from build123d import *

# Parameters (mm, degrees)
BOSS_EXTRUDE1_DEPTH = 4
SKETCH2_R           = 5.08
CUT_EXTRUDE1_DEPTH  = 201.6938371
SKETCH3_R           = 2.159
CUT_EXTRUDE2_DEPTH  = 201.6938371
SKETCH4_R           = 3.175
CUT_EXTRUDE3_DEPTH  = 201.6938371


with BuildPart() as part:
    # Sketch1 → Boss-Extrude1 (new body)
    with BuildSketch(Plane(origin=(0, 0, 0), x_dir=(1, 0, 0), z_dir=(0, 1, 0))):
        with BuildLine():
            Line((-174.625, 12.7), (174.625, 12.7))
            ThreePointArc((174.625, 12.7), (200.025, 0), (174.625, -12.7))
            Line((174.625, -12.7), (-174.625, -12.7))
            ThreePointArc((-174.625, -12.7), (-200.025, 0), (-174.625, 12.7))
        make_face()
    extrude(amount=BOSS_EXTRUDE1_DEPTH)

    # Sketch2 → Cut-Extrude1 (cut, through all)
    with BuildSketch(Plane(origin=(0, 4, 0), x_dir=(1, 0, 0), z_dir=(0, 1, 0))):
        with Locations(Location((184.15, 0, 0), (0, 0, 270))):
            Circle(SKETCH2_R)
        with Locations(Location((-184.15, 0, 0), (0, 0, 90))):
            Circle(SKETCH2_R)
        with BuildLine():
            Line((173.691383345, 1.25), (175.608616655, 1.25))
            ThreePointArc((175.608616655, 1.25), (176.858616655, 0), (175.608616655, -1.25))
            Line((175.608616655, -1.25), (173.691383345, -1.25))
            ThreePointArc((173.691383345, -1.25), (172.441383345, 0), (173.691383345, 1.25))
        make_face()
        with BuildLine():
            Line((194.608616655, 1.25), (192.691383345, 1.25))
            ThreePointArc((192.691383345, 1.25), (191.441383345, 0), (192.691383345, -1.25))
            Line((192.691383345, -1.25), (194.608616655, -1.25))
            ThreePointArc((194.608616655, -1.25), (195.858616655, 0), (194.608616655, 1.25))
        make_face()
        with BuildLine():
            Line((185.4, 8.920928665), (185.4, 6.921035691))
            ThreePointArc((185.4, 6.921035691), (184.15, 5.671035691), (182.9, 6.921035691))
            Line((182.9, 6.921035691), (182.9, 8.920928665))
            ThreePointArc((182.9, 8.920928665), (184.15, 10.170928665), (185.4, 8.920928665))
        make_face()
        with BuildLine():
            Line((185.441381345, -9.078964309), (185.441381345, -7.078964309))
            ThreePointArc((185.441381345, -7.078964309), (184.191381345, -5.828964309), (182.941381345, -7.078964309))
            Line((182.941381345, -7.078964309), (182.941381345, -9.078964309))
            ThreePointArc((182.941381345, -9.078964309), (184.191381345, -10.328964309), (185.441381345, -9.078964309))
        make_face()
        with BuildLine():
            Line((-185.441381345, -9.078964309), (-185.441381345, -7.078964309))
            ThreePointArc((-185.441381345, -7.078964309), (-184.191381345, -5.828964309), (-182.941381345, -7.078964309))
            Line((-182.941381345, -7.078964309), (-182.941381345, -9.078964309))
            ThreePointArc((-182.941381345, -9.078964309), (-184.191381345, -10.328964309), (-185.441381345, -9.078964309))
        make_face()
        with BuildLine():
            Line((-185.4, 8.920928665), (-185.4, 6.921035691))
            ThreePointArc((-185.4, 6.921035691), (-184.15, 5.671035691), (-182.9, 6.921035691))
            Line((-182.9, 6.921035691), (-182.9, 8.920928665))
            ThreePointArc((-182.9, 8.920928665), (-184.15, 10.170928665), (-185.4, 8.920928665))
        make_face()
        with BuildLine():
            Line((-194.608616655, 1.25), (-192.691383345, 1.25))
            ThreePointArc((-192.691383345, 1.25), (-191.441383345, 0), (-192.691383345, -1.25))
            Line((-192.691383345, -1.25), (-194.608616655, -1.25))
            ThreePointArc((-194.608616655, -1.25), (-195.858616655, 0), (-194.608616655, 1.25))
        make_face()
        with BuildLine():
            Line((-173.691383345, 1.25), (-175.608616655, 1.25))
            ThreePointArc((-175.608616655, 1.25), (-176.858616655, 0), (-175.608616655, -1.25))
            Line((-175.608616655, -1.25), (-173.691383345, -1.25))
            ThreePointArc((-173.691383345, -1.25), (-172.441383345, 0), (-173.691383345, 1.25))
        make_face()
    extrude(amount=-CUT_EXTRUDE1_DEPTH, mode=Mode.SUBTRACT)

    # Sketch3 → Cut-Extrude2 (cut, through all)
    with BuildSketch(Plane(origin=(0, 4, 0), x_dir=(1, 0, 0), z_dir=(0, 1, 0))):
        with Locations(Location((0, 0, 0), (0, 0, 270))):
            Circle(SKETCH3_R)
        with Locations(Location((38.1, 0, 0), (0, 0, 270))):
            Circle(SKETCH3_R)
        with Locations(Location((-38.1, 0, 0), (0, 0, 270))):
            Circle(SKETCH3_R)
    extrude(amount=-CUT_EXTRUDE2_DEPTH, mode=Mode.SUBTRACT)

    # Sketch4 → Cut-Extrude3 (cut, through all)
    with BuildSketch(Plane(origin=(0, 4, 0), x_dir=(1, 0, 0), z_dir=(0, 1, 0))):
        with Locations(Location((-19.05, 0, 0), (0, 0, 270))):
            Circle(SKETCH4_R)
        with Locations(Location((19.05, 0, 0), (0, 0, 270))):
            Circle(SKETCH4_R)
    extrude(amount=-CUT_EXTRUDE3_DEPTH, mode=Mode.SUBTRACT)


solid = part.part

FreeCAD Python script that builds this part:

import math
import FreeCAD as App
import Part
import Sketcher
Q = App.Units.Quantity

doc = App.newDocument("Part")
body = doc.addObject("PartDesign::Body", "Body")

# Sketch on XZ plane
sketch1 = body.newObject("Sketcher::SketchObject", "Sketch")
sketch1.AttachmentSupport = (doc.getObject("XZ_Plane"), [""])
sketch1.MapMode = "FlatFace"
sketch1.addGeometry(Part.LineSegment(App.Vector(175, -13, 0), App.Vector(-175, -13, 0)), False)
sketch1.addGeometry(Part.ArcOfCircle(Part.Circle(App.Vector(-184, 0, 0), App.Vector(0, 0, 1), 16), math.radians(53), math.radians(307)), False)
sketch1.addGeometry(Part.LineSegment(App.Vector(-175, 13, 0), App.Vector(175, 13, 0)), False)
sketch1.addGeometry(Part.ArcOfCircle(Part.Circle(App.Vector(184, 0, 0), App.Vector(0, 0, 1), 16), math.radians(-127), math.radians(127)), False)
sketch1.addConstraint(Sketcher.Constraint("Coincident", 0, 2, 1, 2))
sketch1.addConstraint(Sketcher.Constraint("Coincident", 1, 1, 2, 1))
sketch1.addConstraint(Sketcher.Constraint("Coincident", 2, 2, 3, 2))
sketch1.addConstraint(Sketcher.Constraint("Coincident", 3, 1, 0, 1))
sketch1.addConstraint(Sketcher.Constraint("Horizontal", 0))
sketch1.addConstraint(Sketcher.Constraint("Horizontal", 2))
sketch1.addConstraint(Sketcher.Constraint("Equal", 1, 3))
sketch1.addConstraint(Sketcher.Constraint("Symmetric", 1, 3, 3, 3, -1, 1))
sketch1.addConstraint(Sketcher.Constraint("Symmetric", 0, 2, 1, 1, -1))
sketch1.addConstraint(Sketcher.Constraint("Radius", 1, Q("0.625 in")))
sketch1.addConstraint(Sketcher.Constraint("DistanceY", 0, 2, 1, 1, Q("1 in")))
sketch1.addConstraint(Sketcher.Constraint("DistanceX", 0, 2, 0, 1, Q("13.75 in")))
pad1 = body.newObject("PartDesign::Pad", "Pad")
pad1.Profile = sketch1
pad1.Length = 4
pad1.Reversed = True

# Sketch on XZ plane
sketch2 = body.newObject("Sketcher::SketchObject", "Sketch001")
sketch2.AttachmentSupport = (doc.getObject("XZ_Plane"), [""])
sketch2.MapMode = "FlatFace"
sketch2.AttachmentOffset = App.Placement(App.Vector(0, 0, -4), App.Rotation())
sketch2.addGeometry(Part.Circle(App.Vector(184.2, 0, 0), App.Vector(0, 0, 1), 5.1), False)
sketch2.addGeometry(Part.Circle(App.Vector(-184.2, 0, 0), App.Vector(0, 0, 1), 5.1), False)
sketch2.addGeometry(Part.LineSegment(App.Vector(175.6, -1.2, 0), App.Vector(173.7, -1.2, 0)), False)
sketch2.addGeometry(Part.ArcOfCircle(Part.Circle(App.Vector(173.7, 0, 0), App.Vector(0, 0, 1), 1.2), math.radians(90), math.radians(270)), False)
sketch2.addGeometry(Part.LineSegment(App.Vector(173.7, 1.2, 0), App.Vector(175.6, 1.2, 0)), False)
sketch2.addGeometry(Part.ArcOfCircle(Part.Circle(App.Vector(175.6, 0, 0), App.Vector(0, 0, 1), 1.2), math.radians(-90), math.radians(90)), False)
sketch2.addGeometry(Part.LineSegment(App.Vector(194.6, -1.2, 0), App.Vector(192.7, -1.2, 0)), False)
sketch2.addGeometry(Part.ArcOfCircle(Part.Circle(App.Vector(192.7, 0, 0), App.Vector(0, 0, 1), 1.2), math.radians(90), math.radians(270)), False)
sketch2.addGeometry(Part.LineSegment(App.Vector(192.7, 1.2, 0), App.Vector(194.6, 1.2, 0)), False)
sketch2.addGeometry(Part.ArcOfCircle(Part.Circle(App.Vector(194.6, 0, 0), App.Vector(0, 0, 1), 1.2), math.radians(-90), math.radians(90)), False)
sketch2.addGeometry(Part.LineSegment(App.Vector(185.4, -6.9, 0), App.Vector(185.4, -8.9, 0)), False)
sketch2.addGeometry(Part.ArcOfCircle(Part.Circle(App.Vector(184.2, -8.9, 0), App.Vector(0, 0, 1), 1.2), math.radians(180), math.radians(360)), False)
sketch2.addGeometry(Part.LineSegment(App.Vector(182.9, -8.9, 0), App.Vector(182.9, -6.9, 0)), False)
sketch2.addGeometry(Part.ArcOfCircle(Part.Circle(App.Vector(184.2, -6.9, 0), App.Vector(0, 0, 1), 1.2), math.radians(0), math.radians(180)), False)
sketch2.addGeometry(Part.LineSegment(App.Vector(185.4, 9.1, 0), App.Vector(185.4, 7.1, 0)), False)
sketch2.addGeometry(Part.ArcOfCircle(Part.Circle(App.Vector(184.2, 7.1, 0), App.Vector(0, 0, 1), 1.2), math.radians(180), math.radians(360)), False)
sketch2.addGeometry(Part.LineSegment(App.Vector(182.9, 7.1, 0), App.Vector(182.9, 9.1, 0)), False)
sketch2.addGeometry(Part.ArcOfCircle(Part.Circle(App.Vector(184.2, 9.1, 0), App.Vector(0, 0, 1), 1.2), math.radians(0), math.radians(180)), False)
sketch2.addGeometry(Part.LineSegment(App.Vector(-185.4, 7.1, 0), App.Vector(-185.4, 9.1, 0)), False)
sketch2.addGeometry(Part.ArcOfCircle(Part.Circle(App.Vector(-184.2, 9.1, 0), App.Vector(0, 0, 1), 1.2), math.radians(0), math.radians(180)), False)
sketch2.addGeometry(Part.LineSegment(App.Vector(-182.9, 9.1, 0), App.Vector(-182.9, 7.1, 0)), False)
sketch2.addGeometry(Part.ArcOfCircle(Part.Circle(App.Vector(-184.2, 7.1, 0), App.Vector(0, 0, 1), 1.2), math.radians(180), math.radians(360)), False)
sketch2.addGeometry(Part.LineSegment(App.Vector(-185.4, -8.9, 0), App.Vector(-185.4, -6.9, 0)), False)
sketch2.addGeometry(Part.ArcOfCircle(Part.Circle(App.Vector(-184.2, -6.9, 0), App.Vector(0, 0, 1), 1.2), math.radians(0), math.radians(180)), False)
sketch2.addGeometry(Part.LineSegment(App.Vector(-182.9, -6.9, 0), App.Vector(-182.9, -8.9, 0)), False)
sketch2.addGeometry(Part.ArcOfCircle(Part.Circle(App.Vector(-184.2, -8.9, 0), App.Vector(0, 0, 1), 1.2), math.radians(180), math.radians(360)), False)
sketch2.addGeometry(Part.LineSegment(App.Vector(-192.7, -1.2, 0), App.Vector(-194.6, -1.2, 0)), False)
sketch2.addGeometry(Part.ArcOfCircle(Part.Circle(App.Vector(-194.6, 0, 0), App.Vector(0, 0, 1), 1.2), math.radians(90), math.radians(270)), False)
sketch2.addGeometry(Part.LineSegment(App.Vector(-194.6, 1.2, 0), App.Vector(-192.7, 1.2, 0)), False)
sketch2.addGeometry(Part.ArcOfCircle(Part.Circle(App.Vector(-192.7, 0, 0), App.Vector(0, 0, 1), 1.2), math.radians(-90), math.radians(90)), False)
sketch2.addGeometry(Part.LineSegment(App.Vector(-173.7, -1.2, 0), App.Vector(-175.6, -1.2, 0)), False)
sketch2.addGeometry(Part.ArcOfCircle(Part.Circle(App.Vector(-175.6, 0, 0), App.Vector(0, 0, 1), 1.2), math.radians(90), math.radians(270)), False)
sketch2.addGeometry(Part.LineSegment(App.Vector(-175.6, 1.2, 0), App.Vector(-173.7, 1.2, 0)), False)
sketch2.addGeometry(Part.ArcOfCircle(Part.Circle(App.Vector(-173.7, 0, 0), App.Vector(0, 0, 1), 1.2), math.radians(-90), math.radians(90)), False)
sketch2.addConstraint(Sketcher.Constraint("Tangent", 2, 2, 3, 2))
sketch2.addConstraint(Sketcher.Constraint("Tangent", 3, 1, 4, 1))
sketch2.addConstraint(Sketcher.Constraint("Tangent", 4, 2, 5, 2))
sketch2.addConstraint(Sketcher.Constraint("Tangent", 5, 1, 2, 1))
sketch2.addConstraint(Sketcher.Constraint("Tangent", 6, 2, 7, 2))
sketch2.addConstraint(Sketcher.Constraint("Tangent", 7, 1, 8, 1))
sketch2.addConstraint(Sketcher.Constraint("Tangent", 8, 2, 9, 2))
sketch2.addConstraint(Sketcher.Constraint("Tangent", 9, 1, 6, 1))
sketch2.addConstraint(Sketcher.Constraint("Tangent", 10, 2, 11, 2))
sketch2.addConstraint(Sketcher.Constraint("Tangent", 11, 1, 12, 1))
sketch2.addConstraint(Sketcher.Constraint("Tangent", 12, 2, 13, 2))
sketch2.addConstraint(Sketcher.Constraint("Tangent", 13, 1, 10, 1))
sketch2.addConstraint(Sketcher.Constraint("Tangent", 14, 2, 15, 2))
sketch2.addConstraint(Sketcher.Constraint("Tangent", 15, 1, 16, 1))
sketch2.addConstraint(Sketcher.Constraint("Tangent", 16, 2, 17, 2))
sketch2.addConstraint(Sketcher.Constraint("Tangent", 17, 1, 14, 1))
sketch2.addConstraint(Sketcher.Constraint("Tangent", 18, 2, 19, 2))
sketch2.addConstraint(Sketcher.Constraint("Tangent", 19, 1, 20, 1))
sketch2.addConstraint(Sketcher.Constraint("Tangent", 20, 2, 21, 2))
sketch2.addConstraint(Sketcher.Constraint("Tangent", 21, 1, 18, 1))
sketch2.addConstraint(Sketcher.Constraint("Tangent", 22, 2, 23, 2))
sketch2.addConstraint(Sketcher.Constraint("Tangent", 23, 1, 24, 1))
sketch2.addConstraint(Sketcher.Constraint("Tangent", 24, 2, 25, 2))
sketch2.addConstraint(Sketcher.Constraint("Tangent", 25, 1, 22, 1))
sketch2.addConstraint(Sketcher.Constraint("Tangent", 26, 2, 27, 2))
sketch2.addConstraint(Sketcher.Constraint("Tangent", 27, 1, 28, 1))
sketch2.addConstraint(Sketcher.Constraint("Tangent", 28, 2, 29, 2))
sketch2.addConstraint(Sketcher.Constraint("Tangent", 29, 1, 26, 1))
sketch2.addConstraint(Sketcher.Constraint("Tangent", 30, 2, 31, 2))
sketch2.addConstraint(Sketcher.Constraint("Tangent", 31, 1, 32, 1))
sketch2.addConstraint(Sketcher.Constraint("Tangent", 32, 2, 33, 2))
sketch2.addConstraint(Sketcher.Constraint("Tangent", 33, 1, 30, 1))
sketch2.addConstraint(Sketcher.Constraint("Horizontal", 2))
sketch2.addConstraint(Sketcher.Constraint("Horizontal", 4))
sketch2.addConstraint(Sketcher.Constraint("Horizontal", 6))
sketch2.addConstraint(Sketcher.Constraint("Horizontal", 8))
sketch2.addConstraint(Sketcher.Constraint("Vertical", 10))
sketch2.addConstraint(Sketcher.Constraint("Vertical", 12))
sketch2.addConstraint(Sketcher.Constraint("Vertical", 14))
sketch2.addConstraint(Sketcher.Constraint("Vertical", 16))
sketch2.addConstraint(Sketcher.Constraint("Vertical", 18))
sketch2.addConstraint(Sketcher.Constraint("Vertical", 20))
sketch2.addConstraint(Sketcher.Constraint("Vertical", 22))
sketch2.addConstraint(Sketcher.Constraint("Vertical", 24))
sketch2.addConstraint(Sketcher.Constraint("Horizontal", 26))
sketch2.addConstraint(Sketcher.Constraint("Horizontal", 28))
sketch2.addConstraint(Sketcher.Constraint("Horizontal", 30))
sketch2.addConstraint(Sketcher.Constraint("Horizontal", 32))
sketch2.addConstraint(Sketcher.Constraint("Equal", 0, 1))
sketch2.addConstraint(Sketcher.Constraint("Equal", 5, 7))
sketch2.addConstraint(Sketcher.Constraint("Equal", 9, 11))
sketch2.addConstraint(Sketcher.Constraint("Equal", 13, 15))
sketch2.addConstraint(Sketcher.Constraint("Equal", 17, 19))
sketch2.addConstraint(Sketcher.Constraint("Equal", 21, 23))
sketch2.addConstraint(Sketcher.Constraint("Equal", 25, 27))
sketch2.addConstraint(Sketcher.Constraint("Equal", 29, 31))
sketch2.addConstraint(Sketcher.Constraint("Symmetric", 0, 3, 1, 3, -1, 1))
sketch2.addConstraint(Sketcher.Constraint("Symmetric", 9, 3, 27, 3, -1, 1))
sketch2.addConstraint(Sketcher.Constraint("Symmetric", 5, 3, 31, 3, -1, 1))
sketch2.addConstraint(Sketcher.Constraint("Symmetric", 17, 3, 19, 3, -2))
sketch2.addConstraint(Sketcher.Constraint("Symmetric", 13, 3, 23, 3, -2))
sketch2.addConstraint(Sketcher.Constraint("Symmetric", 7, 3, 29, 3, -2))
sketch2.addConstraint(Sketcher.Constraint("Symmetric", 3, 3, 33, 3, -2))
sketch2.addConstraint(Sketcher.Constraint("PointOnObject", 0, 3, -1))
sketch2.addConstraint(Sketcher.Constraint("Horizontal", 15, 3, 21, 3))
sketch2.addConstraint(Sketcher.Constraint("Horizontal", 11, 3, 25, 3))
sketch2.addConstraint(Sketcher.Constraint("Vertical", 0, 3, 11, 3))
sketch2.addConstraint(Sketcher.Constraint("Equal", 4, 6))
sketch2.addConstraint(Sketcher.Constraint("Diameter", 0, Q("0.4 in")))
sketch2.addConstraint(Sketcher.Constraint("DistanceX", 1, 3, 0, 3, Q("14.5 in")))
sketch2.addConstraint(Sketcher.Constraint("Radius", 3, 1.25))
sketch2.addConstraint(Sketcher.Constraint("DistanceY", 14, 2, 14, 1, 2.0))
sketch2.addConstraint(Sketcher.Constraint("DistanceX", 3, 3, 7, 3, 19.0))
sketch2.addConstraint(Sketcher.Constraint("DistanceX", 15, 3, 7, 3, 8.500002))
sketch2.addConstraint(Sketcher.Constraint("DistanceY", 23, 3, 21, 3, 14.0))
sketch2.addConstraint(Sketcher.Constraint("DistanceX", 2, 2, 2, 1, 1.917233))
sketch2.addConstraint(Sketcher.Constraint("DistanceY", 10, 2, 10, 1, 1.999893))
sketch2.addConstraint(Sketcher.Constraint("DistanceY", 11, 3, -1, 1, 8.920929))
sketch2.addConstraint(Sketcher.Constraint("DistanceX", -1, 1, 15, 3, 184.191381))
pocket1 = body.newObject("PartDesign::Pocket", "Pocket")
pocket1.Profile = sketch2
pocket1.Type = "ThroughAll"
pocket1.Reversed = True

# Sketch on XZ plane
sketch3 = body.newObject("Sketcher::SketchObject", "Sketch002")
sketch3.AttachmentSupport = (doc.getObject("XZ_Plane"), [""])
sketch3.MapMode = "FlatFace"
sketch3.AttachmentOffset = App.Placement(App.Vector(0, 0, -4), App.Rotation())
sketch3.addGeometry(Part.Circle(App.Vector(0, 0, 0), App.Vector(0, 0, 1), 2.2), False)
sketch3.addGeometry(Part.Circle(App.Vector(38.1, 0, 0), App.Vector(0, 0, 1), 2.2), False)
sketch3.addGeometry(Part.Circle(App.Vector(-38.1, 0, 0), App.Vector(0, 0, 1), 2.2), False)
sketch3.addConstraint(Sketcher.Constraint("Coincident", 0, 3, -1, 1))
sketch3.addConstraint(Sketcher.Constraint("Equal", 0, 1))
sketch3.addConstraint(Sketcher.Constraint("Equal", 1, 2))
sketch3.addConstraint(Sketcher.Constraint("Symmetric", 1, 3, 2, 3, -1, 1))
sketch3.addConstraint(Sketcher.Constraint("PointOnObject", 1, 3, -1))
sketch3.addConstraint(Sketcher.Constraint("Diameter", 0, Q("0.17 in")))
sketch3.addConstraint(Sketcher.Constraint("DistanceX", 2, 3, 1, 3, Q("3 in")))
pocket2 = body.newObject("PartDesign::Pocket", "Pocket001")
pocket2.Profile = sketch3
pocket2.Type = "ThroughAll"
pocket2.Reversed = True

# Sketch on XZ plane
sketch4 = body.newObject("Sketcher::SketchObject", "Sketch003")
sketch4.AttachmentSupport = (doc.getObject("XZ_Plane"), [""])
sketch4.MapMode = "FlatFace"
sketch4.AttachmentOffset = App.Placement(App.Vector(0, 0, -4), App.Rotation())
sketch4.addGeometry(Part.Circle(App.Vector(-19.1, 0, 0), App.Vector(0, 0, 1), 3.2), False)
sketch4.addGeometry(Part.Circle(App.Vector(19.1, 0, 0), App.Vector(0, 0, 1), 3.2), False)
sketch4.addConstraint(Sketcher.Constraint("Equal", 0, 1))
sketch4.addConstraint(Sketcher.Constraint("Symmetric", 0, 3, 1, 3, -1, 1))
sketch4.addConstraint(Sketcher.Constraint("PointOnObject", 0, 3, -1))
sketch4.addConstraint(Sketcher.Constraint("Diameter", 0, Q("0.25 in")))
sketch4.addConstraint(Sketcher.Constraint("DistanceX", 0, 3, 1, 3, Q("1.5 in")))
pocket3 = body.newObject("PartDesign::Pocket", "Pocket002")
pocket3.Profile = sketch4
pocket3.Type = "ThroughAll"
pocket3.Reversed = True

doc.recompute()
